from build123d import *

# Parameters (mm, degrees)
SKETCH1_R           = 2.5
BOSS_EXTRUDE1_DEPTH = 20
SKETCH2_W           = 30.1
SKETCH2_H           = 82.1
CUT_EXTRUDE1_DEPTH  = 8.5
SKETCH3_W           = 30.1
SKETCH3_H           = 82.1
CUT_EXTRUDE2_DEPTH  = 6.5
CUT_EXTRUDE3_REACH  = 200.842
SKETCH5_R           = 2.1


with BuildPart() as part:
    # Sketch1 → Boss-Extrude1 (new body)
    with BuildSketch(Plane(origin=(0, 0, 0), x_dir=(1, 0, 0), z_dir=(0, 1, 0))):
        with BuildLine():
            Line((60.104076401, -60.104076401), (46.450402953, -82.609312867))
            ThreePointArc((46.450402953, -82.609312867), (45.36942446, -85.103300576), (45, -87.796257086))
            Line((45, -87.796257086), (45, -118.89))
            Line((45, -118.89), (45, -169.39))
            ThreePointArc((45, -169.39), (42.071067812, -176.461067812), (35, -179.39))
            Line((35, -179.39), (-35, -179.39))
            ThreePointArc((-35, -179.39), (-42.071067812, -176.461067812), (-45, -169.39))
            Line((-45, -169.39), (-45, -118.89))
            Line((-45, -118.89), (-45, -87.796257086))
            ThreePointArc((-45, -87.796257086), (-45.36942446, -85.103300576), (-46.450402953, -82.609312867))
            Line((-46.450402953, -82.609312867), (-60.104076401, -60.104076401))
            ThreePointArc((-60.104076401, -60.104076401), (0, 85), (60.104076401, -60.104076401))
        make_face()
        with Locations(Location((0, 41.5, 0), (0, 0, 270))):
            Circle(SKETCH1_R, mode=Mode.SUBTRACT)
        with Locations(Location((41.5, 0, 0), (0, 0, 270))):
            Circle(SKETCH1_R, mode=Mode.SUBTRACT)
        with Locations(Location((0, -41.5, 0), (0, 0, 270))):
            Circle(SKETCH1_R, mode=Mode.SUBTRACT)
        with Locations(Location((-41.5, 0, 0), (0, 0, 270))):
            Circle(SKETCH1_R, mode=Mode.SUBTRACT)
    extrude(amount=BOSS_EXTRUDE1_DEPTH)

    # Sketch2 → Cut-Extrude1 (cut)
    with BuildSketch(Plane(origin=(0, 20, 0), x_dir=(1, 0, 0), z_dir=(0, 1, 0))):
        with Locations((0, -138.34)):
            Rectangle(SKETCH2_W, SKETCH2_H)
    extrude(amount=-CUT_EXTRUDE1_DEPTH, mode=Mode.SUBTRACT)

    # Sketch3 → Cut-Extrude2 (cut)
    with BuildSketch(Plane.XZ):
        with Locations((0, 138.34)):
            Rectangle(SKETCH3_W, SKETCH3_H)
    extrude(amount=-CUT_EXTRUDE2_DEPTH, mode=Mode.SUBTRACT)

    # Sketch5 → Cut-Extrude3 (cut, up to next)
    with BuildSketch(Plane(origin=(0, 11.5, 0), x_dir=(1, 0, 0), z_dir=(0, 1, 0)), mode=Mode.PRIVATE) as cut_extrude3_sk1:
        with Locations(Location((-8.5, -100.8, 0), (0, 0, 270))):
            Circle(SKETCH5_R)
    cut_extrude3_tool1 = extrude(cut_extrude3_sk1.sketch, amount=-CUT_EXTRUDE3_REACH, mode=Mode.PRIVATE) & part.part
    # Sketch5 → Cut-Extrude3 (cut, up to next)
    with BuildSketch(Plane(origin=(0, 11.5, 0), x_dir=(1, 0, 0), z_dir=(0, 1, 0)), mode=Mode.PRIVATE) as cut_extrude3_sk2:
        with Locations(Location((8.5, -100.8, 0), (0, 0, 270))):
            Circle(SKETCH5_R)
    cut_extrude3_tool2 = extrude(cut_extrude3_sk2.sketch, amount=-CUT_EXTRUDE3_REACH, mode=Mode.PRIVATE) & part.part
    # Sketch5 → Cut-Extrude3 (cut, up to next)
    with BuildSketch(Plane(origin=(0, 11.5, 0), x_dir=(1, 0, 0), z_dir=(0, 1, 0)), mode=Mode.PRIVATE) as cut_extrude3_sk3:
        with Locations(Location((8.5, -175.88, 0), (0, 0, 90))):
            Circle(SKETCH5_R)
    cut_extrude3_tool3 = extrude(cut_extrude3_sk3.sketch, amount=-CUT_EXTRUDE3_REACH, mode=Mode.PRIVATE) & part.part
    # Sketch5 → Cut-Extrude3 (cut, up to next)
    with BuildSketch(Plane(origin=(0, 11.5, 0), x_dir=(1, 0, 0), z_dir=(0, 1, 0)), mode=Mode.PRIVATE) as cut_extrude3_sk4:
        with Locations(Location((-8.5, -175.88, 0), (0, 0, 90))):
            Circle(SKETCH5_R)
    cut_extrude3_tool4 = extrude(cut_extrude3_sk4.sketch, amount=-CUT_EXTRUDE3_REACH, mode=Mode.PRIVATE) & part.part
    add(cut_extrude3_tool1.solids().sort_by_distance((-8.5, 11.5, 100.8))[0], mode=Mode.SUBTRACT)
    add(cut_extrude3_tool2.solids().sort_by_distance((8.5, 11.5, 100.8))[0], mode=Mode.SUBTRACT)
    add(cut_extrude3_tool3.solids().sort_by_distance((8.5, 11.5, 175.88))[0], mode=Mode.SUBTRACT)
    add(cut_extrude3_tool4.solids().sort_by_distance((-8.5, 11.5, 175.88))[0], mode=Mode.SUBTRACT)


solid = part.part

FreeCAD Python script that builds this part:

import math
import FreeCAD as App
import Part
import Sketcher
from FreeCAD import Vector

doc = App.newDocument("Part")
params = doc.addObject("Spreadsheet::Sheet", "Params")
for row, (alias, value) in enumerate([
    ("sketch1_diameter", "5 mm"),
    ("sketch1_radius", "85 mm"),
    ("sketch1_radius2", "10 mm"),
    ("sketch1_width", "70 mm"),
    ("pad1_length", "20 mm"),
    ("sketch2_width", "30.1 mm"),
    ("sketch2_height", "82.1 mm"),
    ("pocket1_length", "8.5 mm"),
    ("sketch3_width", "30.1 mm"),
    ("sketch3_height", "82.1 mm"),
    ("pocket2_length", "6.5 mm"),
    ("sketch4_diameter", "4.2 mm"),
    ("sketch5_diameter", "4.2 mm"),
    ("sketch6_diameter", "4.2 mm"),
    ("sketch7_diameter", "4.2 mm"),
], start=1):
    params.set(f"A{row}", alias)
    params.set(f"B{row}", "=" + value)
    params.setAlias(f"B{row}", alias)

body = doc.addObject("PartDesign::Body", "Body")

sketch1 = body.newObject("Sketcher::SketchObject", "Sketch")
sketch1.AttachmentSupport = (doc.getObject("XZ_Plane"), [""])
sketch1.MapMode = "FlatFace"
sketch1.addGeometry([
    Part.LineSegment(Vector(46.450403, 82.609313, 0), Vector(60.104076, 60.104076, 0)),
    Part.ArcOfCircle(Part.Circle(Vector(0, 0, 0), Vector(0, 0, 1), 85), math.radians(135), math.radians(405)),
    Part.LineSegment(Vector(-60.104076, 60.104076, 0), Vector(-46.450403, 82.609313, 0)),
    Part.ArcOfCircle(Part.Circle(Vector(-55, 87.796257, 0), Vector(0, 0, 1), 10), math.radians(-31.244717), math.radians(0)),
    Part.LineSegment(Vector(-45, 87.796257, 0), Vector(-45, 169.39, 0)),
    Part.ArcOfCircle(Part.Circle(Vector(-35, 169.39, 0), Vector(0, 0, 1), 10), math.radians(90), math.radians(180)),
    Part.LineSegment(Vector(-35, 179.39, 0), Vector(35, 179.39, 0)),
    Part.ArcOfCircle(Part.Circle(Vector(35, 169.39, 0), Vector(0, 0, 1), 10), math.radians(0), math.radians(90)),
    Part.LineSegment(Vector(45, 169.39, 0), Vector(45, 87.796257, 0)),
    Part.ArcOfCircle(Part.Circle(Vector(55, 87.796257, 0), Vector(0, 0, 1), 10), math.radians(-180), math.radians(-148.755283)),
    Part.Circle(Vector(0, 41.5, 0), Vector(0, 0, 1), 2.5),
    Part.Circle(Vector(41.5, 0, 0), Vector(0, 0, 1), 2.5),
    Part.Circle(Vector(-41.5, 0, 0), Vector(0, 0, 1), 2.5),
    Part.Circle(Vector(0, -41.5, 0), Vector(0, 0, 1), 2.5),
], False)
sketch1.addConstraint([
    Sketcher.Constraint("Coincident", 0, 2, 1, 2),
    Sketcher.Constraint("Coincident", 1, 1, 2, 1),
    Sketcher.Constraint("Tangent", 2, 2, 3, 1),
    Sketcher.Constraint("Tangent", 3, 2, 4, 1),
    Sketcher.Constraint("Tangent", 4, 2, 5, 2),
    Sketcher.Constraint("Tangent", 5, 1, 6, 1),
    Sketcher.Constraint("Tangent", 6, 2, 7, 2),
    Sketcher.Constraint("Tangent", 7, 1, 8, 1),
    Sketcher.Constraint("Tangent", 8, 2, 9, 1),
    Sketcher.Constraint("Tangent", 9, 2, 0, 1),
    Sketcher.Constraint("Vertical", 4),
    Sketcher.Constraint("Horizontal", 6),
    Sketcher.Constraint("Vertical", 8),
    Sketcher.Constraint("Coincident", 1, 3, -1, 1),
    Sketcher.Constraint("Equal", 3, 5),
    Sketcher.Constraint("Equal", 5, 7),
    Sketcher.Constraint("Equal", 7, 9),
    Sketcher.Constraint("Equal", 10, 11),
    Sketcher.Constraint("Equal", 11, 12),
    Sketcher.Constraint("Equal", 12, 13),
    Sketcher.Constraint("Symmetric", 11, 3, 12, 3, -1, 1),
    Sketcher.Constraint("Symmetric", 10, 3, 13, 3, -1, 1),
    Sketcher.Constraint("Symmetric", 3, 3, 9, 3, -2),
    Sketcher.Constraint("PointOnObject", 10, 3, -2),
    Sketcher.Constraint("PointOnObject", 11, 3, -1),
    Sketcher.Constraint("Horizontal", 0, 2, 1, 1),
    Sketcher.Constraint("Diameter", 10, 5.0),
    Sketcher.Constraint("Radius", 1, 85.0),
    Sketcher.Constraint("Radius", 3, 10.0),
    Sketcher.Constraint("DistanceX", 6, 1, 6, 2, 70.0),
    Sketcher.Constraint("DistanceX", 12, 3, 11, 3, 83.0),
    Sketcher.Constraint("DistanceY", 13, 3, 10, 3, 83.0),
    Sketcher.Constraint("DistanceY", -1, 1, 5, 3, 169.39),
    Sketcher.Constraint("DistanceY", 4, 1, 4, 2, 81.593743),
    Sketcher.Constraint("DistanceY", 0, 2, 9, 3, 27.692181),
])
sketch1.setExpression("Constraints[26]", "Params.sketch1_diameter")
sketch1.setExpression("Constraints[27]", "Params.sketch1_radius")
sketch1.setExpression("Constraints[28]", "Params.sketch1_radius2")
sketch1.setExpression("Constraints[29]", "Params.sketch1_width")
pad1 = body.newObject("PartDesign::Pad", "Pad")
pad1.Profile = sketch1
pad1.setExpression("Length", "Params.pad1_length")
pad1.Reversed = True

sketch2 = body.newObject("Sketcher::SketchObject", "Sketch001")
sketch2.AttachmentSupport = (doc.getObject("XZ_Plane"), [""])
sketch2.MapMode = "FlatFace"
sketch2.AttachmentOffset = App.Placement(Vector(0, 0, -20), App.Rotation())
sketch2.addGeometry([
    Part.LineSegment(Vector(-15.05, 97.29, 0), Vector(-15.05, 179.39, 0)),
    Part.LineSegment(Vector(-15.05, 179.39, 0), Vector(15.05, 179.39, 0)),
    Part.LineSegment(Vector(15.05, 179.39, 0), Vector(15.05, 97.29, 0)),
    Part.LineSegment(Vector(15.05, 97.29, 0), Vector(-15.05, 97.29, 0)),
], False)
sketch2.addConstraint([
    Sketcher.Constraint("Coincident", 0, 2, 1, 1),
    Sketcher.Constraint("Coincident", 1, 2, 2, 1),
    Sketcher.Constraint("Coincident", 2, 2, 3, 1),
    Sketcher.Constraint("Coincident", 3, 2, 0, 1),
    Sketcher.Constraint("Vertical", 0),
    Sketcher.Constraint("Horizontal", 1),
    Sketcher.Constraint("Vertical", 2),
    Sketcher.Constraint("Horizontal", 3),
    Sketcher.Constraint("DistanceX", 1, 1, 1, 2, 30.1),
    Sketcher.Constraint("DistanceY", 0, 1, 0, 2, 82.1),
    Sketcher.Constraint("DistanceX", 0, 2, -1, 1, 15.05),
    Sketcher.Constraint("DistanceY", -1, 1, 0, 2, 179.39),
])
sketch2.setExpression("Constraints[8]", "Params.sketch2_width")
sketch2.setExpression("Constraints[9]", "Params.sketch2_height")
pocket1 = body.newObject("PartDesign::Pocket", "Pocket")
pocket1.Profile = sketch2
pocket1.setExpression("Length", "Params.pocket1_length")
pocket1.Reversed = True

sketch3 = body.newObject("Sketcher::SketchObject", "Sketch002")
sketch3.AttachmentSupport = (doc.getObject("XZ_Plane"), [""])
sketch3.MapMode = "FlatFace"
sketch3.addGeometry([
    Part.LineSegment(Vector(-15.05, 179.39, 0), Vector(-15.05, 97.29, 0)),
    Part.LineSegment(Vector(-15.05, 97.29, 0), Vector(15.05, 97.29, 0)),
    Part.LineSegment(Vector(15.05, 97.29, 0), Vector(15.05, 179.39, 0)),
    Part.LineSegment(Vector(15.05, 179.39, 0), Vector(-15.05, 179.39, 0)),
], False)
sketch3.addConstraint([
    Sketcher.Constraint("Coincident", 0, 2, 1, 1),
    Sketcher.Constraint("Coincident", 1, 2, 2, 1),
    Sketcher.Constraint("Coincident", 2, 2, 3, 1),
    Sketcher.Constraint("Coincident", 3, 2, 0, 1),
    Sketcher.Constraint("Vertical", 0),
    Sketcher.Constraint("Horizontal", 1),
    Sketcher.Constraint("Vertical", 2),
    Sketcher.Constraint("Horizontal", 3),
    Sketcher.Constraint("DistanceX", 1, 1, 1, 2, 30.1),
    Sketcher.Constraint("DistanceY", 0, 2, 0, 1, 82.1),
    Sketcher.Constraint("DistanceX", 0, 2, -1, 1, 15.05),
    Sketcher.Constraint("DistanceY", -1, 1, 0, 2, 97.29),
])
sketch3.setExpression("Constraints[8]", "Params.sketch3_width")
sketch3.setExpression("Constraints[9]", "Params.sketch3_height")
pocket2 = body.newObject("PartDesign::Pocket", "Pocket001")
pocket2.Profile = sketch3
pocket2.setExpression("Length", "Params.pocket2_length")

sketch4 = body.newObject("Sketcher::SketchObject", "Sketch003")
sketch4.AttachmentSupport = (doc.getObject("XZ_Plane"), [""])
sketch4.MapMode = "FlatFace"
sketch4.AttachmentOffset = App.Placement(Vector(0, 0, -11.5), App.Rotation())
sketch4.addGeometry(Part.Circle(Vector(-8.5, 100.8, 0), Vector(0, 0, 1), 2.1), False)
sketch4.addConstraint([
    Sketcher.Constraint("Diameter", 0, 4.2),
    Sketcher.Constraint("DistanceX", 0, 3, -1, 1, 8.5),
    Sketcher.Constraint("DistanceY", -1, 1, 0, 3, 100.8),
])
sketch4.setExpression("Constraints[0]", "Params.sketch4_diameter")
pocket3 = body.newObject("PartDesign::Pocket", "Pocket002")
pocket3.Profile = sketch4
pocket3.Type = "UpToFirst"
pocket3.Reversed = True

sketch5 = body.newObject("Sketcher::SketchObject", "Sketch004")
sketch5.AttachmentSupport = (doc.getObject("XZ_Plane"), [""])
sketch5.MapMode = "FlatFace"
sketch5.AttachmentOffset = App.Placement(Vector(0, 0, -11.5), App.Rotation())
sketch5.addGeometry(Part.Circle(Vector(8.5, 100.8, 0), Vector(0, 0, 1), 2.1), False)
sketch5.addConstraint([
    Sketcher.Constraint("Diameter", 0, 4.2),
    Sketcher.Constraint("DistanceX", -1, 1, 0, 3, 8.5),
    Sketcher.Constraint("DistanceY", -1, 1, 0, 3, 100.8),
])
sketch5.setExpression("Constraints[0]", "Params.sketch5_diameter")
pocket4 = body.newObject("PartDesign::Pocket", "Pocket003")
pocket4.Profile = sketch5
pocket4.Type = "UpToFirst"
pocket4.Reversed = True

sketch6 = body.newObject("Sketcher::SketchObject", "Sketch005")
sketch6.AttachmentSupport = (doc.getObject("XZ_Plane"), [""])
sketch6.MapMode = "FlatFace"
sketch6.AttachmentOffset = App.Placement(Vector(0, 0, -11.5), App.Rotation())
sketch6.addGeometry(Part.Circle(Vector(8.5, 175.88, 0), Vector(0, 0, 1), 2.1), False)
sketch6.addConstraint([
    Sketcher.Constraint("Diameter", 0, 4.2),
    Sketcher.Constraint("DistanceX", -1, 1, 0, 3, 8.5),
    Sketcher.Constraint("DistanceY", -1, 1, 0, 3, 175.88),
])
sketch6.setExpression("Constraints[0]", "Params.sketch6_diameter")
pocket5 = body.newObject("PartDesign::Pocket", "Pocket004")
pocket5.Profile = sketch6
pocket5.Type = "UpToFirst"
pocket5.Reversed = True

sketch7 = body.newObject("Sketcher::SketchObject", "Sketch006")
sketch7.AttachmentSupport = (doc.getObject("XZ_Plane"), [""])
sketch7.MapMode = "FlatFace"
sketch7.AttachmentOffset = App.Placement(Vector(0, 0, -11.5), App.Rotation())
sketch7.addGeometry(Part.Circle(Vector(-8.5, 175.88, 0), Vector(0, 0, 1), 2.1), False)
sketch7.addConstraint([
    Sketcher.Constraint("Diameter", 0, 4.2),
    Sketcher.Constraint("DistanceX", 0, 3, -1, 1, 8.5),
    Sketcher.Constraint("DistanceY", -1, 1, 0, 3, 175.88),
])
sketch7.setExpression("Constraints[0]", "Params.sketch7_diameter")
pocket6 = body.newObject("PartDesign::Pocket", "Pocket005")
pocket6.Profile = sketch7
pocket6.Type = "UpToFirst"
pocket6.Reversed = True

doc.recompute()
